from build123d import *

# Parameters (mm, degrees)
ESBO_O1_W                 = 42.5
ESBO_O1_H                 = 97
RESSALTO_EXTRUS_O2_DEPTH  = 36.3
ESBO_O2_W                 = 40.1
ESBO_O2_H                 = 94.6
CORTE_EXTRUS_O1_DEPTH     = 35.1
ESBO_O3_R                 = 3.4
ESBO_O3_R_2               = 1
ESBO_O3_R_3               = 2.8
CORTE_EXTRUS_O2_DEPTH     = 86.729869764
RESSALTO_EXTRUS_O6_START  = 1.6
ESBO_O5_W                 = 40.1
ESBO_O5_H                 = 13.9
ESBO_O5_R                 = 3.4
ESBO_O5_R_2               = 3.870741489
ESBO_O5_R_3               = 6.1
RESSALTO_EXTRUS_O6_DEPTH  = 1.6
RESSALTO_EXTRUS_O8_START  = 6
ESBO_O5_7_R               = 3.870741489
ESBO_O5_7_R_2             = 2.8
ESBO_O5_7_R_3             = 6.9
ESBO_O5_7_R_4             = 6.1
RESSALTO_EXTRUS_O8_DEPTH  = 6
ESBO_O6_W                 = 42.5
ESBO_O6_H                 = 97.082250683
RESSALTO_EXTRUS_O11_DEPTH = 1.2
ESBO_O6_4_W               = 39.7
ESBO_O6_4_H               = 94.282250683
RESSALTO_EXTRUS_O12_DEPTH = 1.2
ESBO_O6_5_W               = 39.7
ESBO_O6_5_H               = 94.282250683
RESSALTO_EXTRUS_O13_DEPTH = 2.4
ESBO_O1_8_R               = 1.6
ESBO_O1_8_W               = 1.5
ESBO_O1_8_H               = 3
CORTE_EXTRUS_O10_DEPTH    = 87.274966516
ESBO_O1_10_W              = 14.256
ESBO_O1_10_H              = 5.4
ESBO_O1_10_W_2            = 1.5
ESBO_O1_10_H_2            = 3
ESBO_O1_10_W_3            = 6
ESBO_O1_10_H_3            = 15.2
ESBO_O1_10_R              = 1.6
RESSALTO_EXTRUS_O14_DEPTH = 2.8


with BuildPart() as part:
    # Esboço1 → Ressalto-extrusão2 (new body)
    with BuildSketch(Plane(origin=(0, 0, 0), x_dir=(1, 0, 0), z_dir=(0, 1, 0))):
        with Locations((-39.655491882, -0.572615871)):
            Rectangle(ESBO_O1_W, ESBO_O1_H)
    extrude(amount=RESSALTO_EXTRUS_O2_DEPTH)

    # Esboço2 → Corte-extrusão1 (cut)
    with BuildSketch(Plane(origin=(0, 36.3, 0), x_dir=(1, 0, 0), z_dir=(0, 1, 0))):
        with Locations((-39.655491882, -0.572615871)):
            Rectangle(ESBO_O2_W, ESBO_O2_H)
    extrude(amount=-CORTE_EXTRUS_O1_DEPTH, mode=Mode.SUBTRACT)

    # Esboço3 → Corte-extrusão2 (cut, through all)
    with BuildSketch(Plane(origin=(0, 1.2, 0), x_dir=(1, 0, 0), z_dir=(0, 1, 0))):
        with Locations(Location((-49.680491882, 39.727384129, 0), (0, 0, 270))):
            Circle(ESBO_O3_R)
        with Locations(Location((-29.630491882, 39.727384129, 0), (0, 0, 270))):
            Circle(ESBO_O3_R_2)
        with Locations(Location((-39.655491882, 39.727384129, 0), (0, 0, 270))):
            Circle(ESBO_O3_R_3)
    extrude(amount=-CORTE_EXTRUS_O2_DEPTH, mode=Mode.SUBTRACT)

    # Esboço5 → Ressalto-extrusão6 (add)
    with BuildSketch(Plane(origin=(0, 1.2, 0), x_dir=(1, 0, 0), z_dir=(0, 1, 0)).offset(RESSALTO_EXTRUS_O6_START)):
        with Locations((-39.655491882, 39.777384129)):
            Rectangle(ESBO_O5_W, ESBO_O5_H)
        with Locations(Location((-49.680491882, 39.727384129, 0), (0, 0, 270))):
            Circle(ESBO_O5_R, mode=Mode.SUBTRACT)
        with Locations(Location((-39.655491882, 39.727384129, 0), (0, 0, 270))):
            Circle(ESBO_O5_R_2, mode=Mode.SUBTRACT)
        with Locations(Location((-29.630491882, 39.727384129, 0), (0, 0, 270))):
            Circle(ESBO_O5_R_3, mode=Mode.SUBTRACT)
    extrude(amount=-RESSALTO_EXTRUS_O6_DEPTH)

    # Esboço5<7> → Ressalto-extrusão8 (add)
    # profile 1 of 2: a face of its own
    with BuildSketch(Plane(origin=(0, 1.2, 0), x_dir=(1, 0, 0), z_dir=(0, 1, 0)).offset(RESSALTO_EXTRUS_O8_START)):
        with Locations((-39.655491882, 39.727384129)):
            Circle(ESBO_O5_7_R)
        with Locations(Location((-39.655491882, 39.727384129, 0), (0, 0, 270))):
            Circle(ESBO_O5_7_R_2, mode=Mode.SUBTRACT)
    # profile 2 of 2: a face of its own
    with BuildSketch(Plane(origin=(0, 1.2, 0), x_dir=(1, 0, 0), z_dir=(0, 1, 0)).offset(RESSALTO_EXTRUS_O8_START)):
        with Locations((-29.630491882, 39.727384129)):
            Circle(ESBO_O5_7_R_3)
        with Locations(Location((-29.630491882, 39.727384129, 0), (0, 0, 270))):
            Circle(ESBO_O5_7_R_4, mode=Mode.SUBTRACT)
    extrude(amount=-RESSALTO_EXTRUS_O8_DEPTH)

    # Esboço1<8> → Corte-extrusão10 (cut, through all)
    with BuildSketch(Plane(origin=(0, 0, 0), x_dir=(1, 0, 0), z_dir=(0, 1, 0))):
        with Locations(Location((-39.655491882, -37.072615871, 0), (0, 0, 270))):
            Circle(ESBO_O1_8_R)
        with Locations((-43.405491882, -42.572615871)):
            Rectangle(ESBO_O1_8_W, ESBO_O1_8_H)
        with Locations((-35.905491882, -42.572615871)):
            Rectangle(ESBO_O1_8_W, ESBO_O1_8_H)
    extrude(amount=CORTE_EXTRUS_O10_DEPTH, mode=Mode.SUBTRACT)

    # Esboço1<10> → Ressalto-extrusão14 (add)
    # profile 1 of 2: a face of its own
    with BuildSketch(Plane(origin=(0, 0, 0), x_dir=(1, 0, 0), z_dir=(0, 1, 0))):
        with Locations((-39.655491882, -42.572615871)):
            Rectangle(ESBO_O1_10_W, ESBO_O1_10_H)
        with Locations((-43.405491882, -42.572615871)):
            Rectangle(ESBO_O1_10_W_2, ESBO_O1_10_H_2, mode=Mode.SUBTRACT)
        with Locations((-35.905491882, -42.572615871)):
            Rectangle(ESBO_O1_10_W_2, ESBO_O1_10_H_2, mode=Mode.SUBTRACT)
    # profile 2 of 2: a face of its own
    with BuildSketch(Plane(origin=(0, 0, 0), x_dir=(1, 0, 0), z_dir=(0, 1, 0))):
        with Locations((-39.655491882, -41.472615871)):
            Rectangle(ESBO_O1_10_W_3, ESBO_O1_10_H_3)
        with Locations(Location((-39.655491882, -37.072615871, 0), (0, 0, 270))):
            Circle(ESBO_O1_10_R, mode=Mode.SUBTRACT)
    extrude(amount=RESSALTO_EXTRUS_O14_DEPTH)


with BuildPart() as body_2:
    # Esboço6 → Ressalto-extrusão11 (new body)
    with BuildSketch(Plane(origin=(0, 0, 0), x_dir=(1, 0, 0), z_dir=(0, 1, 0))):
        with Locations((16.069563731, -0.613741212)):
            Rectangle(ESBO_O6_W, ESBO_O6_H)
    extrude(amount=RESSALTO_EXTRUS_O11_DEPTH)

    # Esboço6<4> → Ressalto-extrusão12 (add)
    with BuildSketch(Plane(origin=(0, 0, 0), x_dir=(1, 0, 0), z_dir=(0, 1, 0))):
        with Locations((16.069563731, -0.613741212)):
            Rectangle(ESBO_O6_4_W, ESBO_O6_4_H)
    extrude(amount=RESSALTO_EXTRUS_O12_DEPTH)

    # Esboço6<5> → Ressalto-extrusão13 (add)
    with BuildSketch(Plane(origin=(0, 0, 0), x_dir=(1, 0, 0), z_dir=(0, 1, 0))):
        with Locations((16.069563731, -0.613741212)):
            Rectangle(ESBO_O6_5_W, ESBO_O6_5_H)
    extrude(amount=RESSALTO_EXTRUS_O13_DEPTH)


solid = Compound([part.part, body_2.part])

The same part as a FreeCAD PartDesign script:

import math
import FreeCAD as App
import Part
import Sketcher

V = App.Vector
Q = App.Units.Quantity

doc = App.newDocument("Part")
body = doc.addObject("PartDesign::Body", "Body")

sketch1 = body.newObject("Sketcher::SketchObject", "Sketch")
sketch1.AttachmentSupport = (doc.getObject("XZ_Plane"), [""])
sketch1.MapMode = "FlatFace"
sketch1.addGeometry([
    Part.LineSegment(V(-60.905492, -47.927384, 0), V(-60.905492, 49.072616, 0)),
    Part.LineSegment(V(-60.905492, 49.072616, 0), V(-18.405492, 49.072616, 0)),
    Part.LineSegment(V(-18.405492, 49.072616, 0), V(-18.405492, -47.927384, 0)),
    Part.LineSegment(V(-18.405492, -47.927384, 0), V(-60.905492, -47.927384, 0)),
], False)
sketch1.addConstraint([
    Sketcher.Constraint("Coincident", 0, 2, 1, 1),
    Sketcher.Constraint("Coincident", 1, 2, 2, 1),
    Sketcher.Constraint("Coincident", 2, 2, 3, 1),
    Sketcher.Constraint("Coincident", 3, 2, 0, 1),
    Sketcher.Constraint("Vertical", 0),
    Sketcher.Constraint("Horizontal", 1),
    Sketcher.Constraint("Vertical", 2),
    Sketcher.Constraint("Horizontal", 3),
    Sketcher.Constraint("DistanceY", 0, 1, 0, 2, Q("97 mm")),
    Sketcher.Constraint("DistanceX", 1, 1, 1, 2, Q("42.5 mm")),
    Sketcher.Constraint("DistanceX", 0, 2, -1, 1, Q("60.905492 mm")),
    Sketcher.Constraint("DistanceY", -1, 1, 0, 2, Q("49.072616 mm")),
])
pad1 = body.newObject("PartDesign::Pad", "Pad")
pad1.Profile = sketch1
pad1.Length = 36.3
pad1.Reversed = True

sketch2 = body.newObject("Sketcher::SketchObject", "Sketch001")
sketch2.AttachmentSupport = (doc.getObject("XZ_Plane"), [""])
sketch2.MapMode = "FlatFace"
sketch2.AttachmentOffset = App.Placement(V(0, 0, -36.3), App.Rotation())
sketch2.addGeometry([
    Part.LineSegment(V(-59.705492, -46.727384, 0), V(-59.705492, 47.872616, 0)),
    Part.LineSegment(V(-59.705492, 47.872616, 0), V(-19.605492, 47.872616, 0)),
    Part.LineSegment(V(-19.605492, 47.872616, 0), V(-19.605492, -46.727384, 0)),
    Part.LineSegment(V(-19.605492, -46.727384, 0), V(-59.705492, -46.727384, 0)),
], False)
sketch2.addConstraint([
    Sketcher.Constraint("Coincident", 0, 2, 1, 1),
    Sketcher.Constraint("Coincident", 1, 2, 2, 1),
    Sketcher.Constraint("Coincident", 2, 2, 3, 1),
    Sketcher.Constraint("Coincident", 3, 2, 0, 1),
    Sketcher.Constraint("Vertical", 0),
    Sketcher.Constraint("Horizontal", 1),
    Sketcher.Constraint("Vertical", 2),
    Sketcher.Constraint("Horizontal", 3),
    Sketcher.Constraint("DistanceX", 1, 1, 1, 2, Q("40.1 mm")),
    Sketcher.Constraint("DistanceY", 0, 1, 0, 2, Q("94.6 mm")),
    Sketcher.Constraint("DistanceX", 0, 2, -1, 1, Q("59.705492 mm")),
    Sketcher.Constraint("DistanceY", -1, 1, 0, 2, Q("47.872616 mm")),
])
pocket1 = body.newObject("PartDesign::Pocket", "Pocket")
pocket1.Profile = sketch2
pocket1.Length = 35.1
pocket1.Reversed = True

sketch3 = body.newObject("Sketcher::SketchObject", "Sketch002")
sketch3.AttachmentSupport = (doc.getObject("XZ_Plane"), [""])
sketch3.MapMode = "FlatFace"
sketch3.AttachmentOffset = App.Placement(V(0, 0, -1.2), App.Rotation())
sketch3.addGeometry([
    Part.Circle(V(-49.680492, -39.727384, 0), V(0, 0, 1), 3.4),
    Part.Circle(V(-29.630492, -39.727384, 0), V(0, 0, 1), 1),
    Part.Circle(V(-39.655492, -39.727384, 0), V(0, 0, 1), 2.8),
], False)
sketch3.addConstraint([
    Sketcher.Constraint("Horizontal", 0, 3, 1, 3),
    Sketcher.Constraint("Horizontal", 1, 3, 2, 3),
    Sketcher.Constraint("Diameter", 1, Q("2 mm")),
    Sketcher.Constraint("Diameter", 0, Q("6.8 mm")),
    Sketcher.Constraint("Diameter", 2, Q("5.6 mm")),
    Sketcher.Constraint("DistanceX", 0, 3, 1, 3, Q("20.05 mm")),
    Sketcher.Constraint("DistanceX", 0, 3, 2, 3, Q("10.025 mm")),
    Sketcher.Constraint("DistanceX", 0, 3, -1, 1, Q("49.680492 mm")),
    Sketcher.Constraint("DistanceY", 0, 3, -1, 1, Q("39.727384 mm")),
])
pocket2 = body.newObject("PartDesign::Pocket", "Pocket001")
pocket2.Profile = sketch3
pocket2.Type = "ThroughAll"
pocket2.Reversed = True

sketch4 = body.newObject("Sketcher::SketchObject", "Sketch003")
sketch4.AttachmentSupport = (doc.getObject("XZ_Plane"), [""])
sketch4.MapMode = "FlatFace"
sketch4.AttachmentOffset = App.Placement(V(0, 0, -2.8), App.Rotation())
sketch4.addGeometry([
    Part.LineSegment(V(-59.705492, -46.727384, 0), V(-59.705492, -32.827384, 0)),
    Part.LineSegment(V(-59.705492, -32.827384, 0), V(-19.605492, -32.827384, 0)),
    Part.LineSegment(V(-19.605492, -32.827384, 0), V(-19.605492, -46.727384, 0)),
    Part.LineSegment(V(-19.605492, -46.727384, 0), V(-59.705492, -46.727384, 0)),
    Part.Circle(V(-49.680492, -39.727384, 0), V(0, 0, 1), 3.4),
    Part.Circle(V(-39.655492, -39.727384, 0), V(0, 0, 1), 3.870741),
    Part.Circle(V(-29.630492, -39.727384, 0), V(0, 0, 1), 6.1),
], False)
sketch4.addConstraint([
    Sketcher.Constraint("Coincident", 0, 2, 1, 1),
    Sketcher.Constraint("Coincident", 1, 2, 2, 1),
    Sketcher.Constraint("Coincident", 2, 2, 3, 1),
    Sketcher.Constraint("Coincident", 3, 2, 0, 1),
    Sketcher.Constraint("Vertical", 0),
    Sketcher.Constraint("Horizontal", 1),
    Sketcher.Constraint("Vertical", 2),
    Sketcher.Constraint("Horizontal", 3),
    Sketcher.Constraint("Horizontal", 4, 3, 5, 3),
    Sketcher.Constraint("Horizontal", 5, 3, 6, 3),
    Sketcher.Constraint("Diameter", 4, Q("6.8 mm")),
    Sketcher.Constraint("Diameter", 6, Q("12.2 mm")),
    Sketcher.Constraint("DistanceX", 1, 1, 1, 2, Q("40.1 mm")),
    Sketcher.Constraint("DistanceY", 0, 1, 0, 2, Q("13.9 mm")),
    Sketcher.Constraint("DistanceY", 2, 2, 6, 3, Q("7 mm")),
    Sketcher.Constraint("DistanceX", 4, 3, 6, 3, Q("20.05 mm")),
    Sketcher.Constraint("DistanceX", 0, 2, 5, 3, Q("20.05 mm")),
    Sketcher.Constraint("Diameter", 5, Q("7.741483 mm")),
    Sketcher.Constraint("DistanceX", 4, 3, 5, 3, Q("10.025 mm")),
    Sketcher.Constraint("DistanceX", 4, 3, -1, 1, Q("49.680492 mm")),
    Sketcher.Constraint("DistanceY", 4, 3, -1, 1, Q("39.727384 mm")),
])
pad2 = body.newObject("PartDesign::Pad", "Pad001")
pad2.Profile = sketch4
pad2.Length = 1.6

sketch5 = body.newObject("Sketcher::SketchObject", "Sketch004")
sketch5.AttachmentSupport = (doc.getObject("XZ_Plane"), [""])
sketch5.MapMode = "FlatFace"
sketch5.AttachmentOffset = App.Placement(V(0, 0, -7.2), App.Rotation())
sketch5.addGeometry([
    Part.ArcOfCircle(Part.Circle(V(-29.630492, -39.727384, 0), V(0, 0, 1), 6.9), math.radians(-164.215122), math.radians(164.215122)),
    Part.ArcOfCircle(Part.Circle(V(-39.655492, -39.727384, 0), V(0, 0, 1), 3.870741), math.radians(29.006916), math.radians(330.993084)),
    Part.Circle(V(-29.630492, -39.727384, 0), V(0, 0, 1), 6.1),
    Part.Circle(V(-39.655492, -39.727384, 0), V(0, 0, 1), 2.8),
], False)
sketch5.addConstraint([
    Sketcher.Constraint("Coincident", 0, 1, 1, 2),
    Sketcher.Constraint("Coincident", 1, 1, 0, 2),
    Sketcher.Constraint("Coincident", 2, 3, 0, 3),
    Sketcher.Constraint("Coincident", 3, 3, 1, 3),
    Sketcher.Constraint("Horizontal", 0, 3, 1, 3),
    Sketcher.Constraint("Diameter", 2, Q("12.2 mm")),
    Sketcher.Constraint("Diameter", 3, Q("5.6 mm")),
    Sketcher.Constraint("Radius", 0, Q("6.9 mm")),
    Sketcher.Constraint("Radius", 1, Q("3.870741 mm")),
    Sketcher.Constraint("DistanceX", 1, 3, 0, 3, Q("10.025 mm")),
    Sketcher.Constraint("DistanceX", 0, 3, -1, 1, Q("29.630492 mm")),
    Sketcher.Constraint("DistanceY", 0, 3, -1, 1, Q("39.727384 mm")),
])
pad3 = body.newObject("PartDesign::Pad", "Pad002")
pad3.Profile = sketch5
pad3.Length = 6

sketch6 = body.newObject("Sketcher::SketchObject", "Sketch005")
sketch6.AttachmentSupport = (doc.getObject("XZ_Plane"), [""])
sketch6.MapMode = "FlatFace"
sketch6.addGeometry([
    Part.Circle(V(-39.655492, 37.072616, 0), V(0, 0, 1), 1.6),
    Part.LineSegment(V(-44.155492, 41.072616, 0), V(-44.155492, 44.072616, 0)),
    Part.LineSegment(V(-44.155492, 44.072616, 0), V(-42.655492, 44.072616, 0)),
    Part.LineSegment(V(-42.655492, 44.072616, 0), V(-42.655492, 41.072616, 0)),
    Part.LineSegment(V(-42.655492, 41.072616, 0), V(-44.155492, 41.072616, 0)),
    Part.LineSegment(V(-36.655492, 41.072616, 0), V(-36.655492, 44.072616, 0)),
    Part.LineSegment(V(-36.655492, 44.072616, 0), V(-35.155492, 44.072616, 0)),
    Part.LineSegment(V(-35.155492, 44.072616, 0), V(-35.155492, 41.072616, 0)),
    Part.LineSegment(V(-35.155492, 41.072616, 0), V(-36.655492, 41.072616, 0)),
], False)
sketch6.addConstraint([
    Sketcher.Constraint("Coincident", 1, 2, 2, 1),
    Sketcher.Constraint("Coincident", 2, 2, 3, 1),
    Sketcher.Constraint("Coincident", 3, 2, 4, 1),
    Sketcher.Constraint("Coincident", 4, 2, 1, 1),
    Sketcher.Constraint("Coincident", 5, 2, 6, 1),
    Sketcher.Constraint("Coincident", 6, 2, 7, 1),
    Sketcher.Constraint("Coincident", 7, 2, 8, 1),
    Sketcher.Constraint("Coincident", 8, 2, 5, 1),
    Sketcher.Constraint("Vertical", 1),
    Sketcher.Constraint("Horizontal", 2),
    Sketcher.Constraint("Vertical", 3),
    Sketcher.Constraint("Horizontal", 4),
    Sketcher.Constraint("Vertical", 5),
    Sketcher.Constraint("Horizontal", 6),
    Sketcher.Constraint("Vertical", 7),
    Sketcher.Constraint("Horizontal", 8),
    Sketcher.Constraint("Horizontal", 2, 2, 5, 2),
    Sketcher.Constraint("Horizontal", 4, 2, 7, 2),
    Sketcher.Constraint("Equal", 4, 6),
    Sketcher.Constraint("Diameter", 0, Q("3.2 mm")),
    Sketcher.Constraint("DistanceY", 1, 1, 1, 2, Q("3 mm")),
    Sketcher.Constraint("DistanceX", 2, 1, 2, 2, Q("1.5 mm")),
    Sketcher.Constraint("DistanceY", 0, 3, 1, 2, Q("7 mm")),
    Sketcher.Constraint("DistanceX", 2, 2, 0, 3, Q("3 mm")),
    Sketcher.Constraint("DistanceX", 2, 2, 5, 2, Q("6 mm")),
    Sketcher.Constraint("DistanceX", 0, 3, -1, 1, Q("39.655492 mm")),
    Sketcher.Constraint("DistanceY", -1, 1, 0, 3, Q("37.072616 mm")),
])
pocket3 = body.newObject("PartDesign::Pocket", "Pocket002")
pocket3.Profile = sketch6
pocket3.Type = "ThroughAll"

sketch7 = body.newObject("Sketcher::SketchObject", "Sketch006")
sketch7.AttachmentSupport = (doc.getObject("XZ_Plane"), [""])
sketch7.MapMode = "FlatFace"
sketch7.addGeometry([
    Part.LineSegment(V(-46.783492, 39.872616, 0), V(-46.783492, 45.272616, 0)),
    Part.LineSegment(V(-46.783492, 45.272616, 0), V(-42.655492, 45.272616, 0)),
    Part.LineSegment(V(-42.655492, 45.272616, 0), V(-42.655492, 49.072616, 0)),
    Part.LineSegment(V(-42.655492, 49.072616, 0), V(-36.655492, 49.072616, 0)),
    Part.LineSegment(V(-36.655492, 49.072616, 0), V(-36.655492, 45.272616, 0)),
    Part.LineSegment(V(-36.655492, 45.272616, 0), V(-32.527492, 45.272616, 0)),
    Part.LineSegment(V(-32.527492, 45.272616, 0), V(-32.527492, 39.872616, 0)),
    Part.LineSegment(V(-32.527492, 39.872616, 0), V(-36.655492, 39.872616, 0)),
    Part.LineSegment(V(-36.655492, 39.872616, 0), V(-36.655492, 33.872616, 0)),
    Part.LineSegment(V(-36.655492, 33.872616, 0), V(-42.655492, 33.872616, 0)),
    Part.LineSegment(V(-42.655492, 33.872616, 0), V(-42.655492, 39.872616, 0)),
    Part.LineSegment(V(-42.655492, 39.872616, 0), V(-46.783492, 39.872616, 0)),
    Part.LineSegment(V(-44.155492, 41.072616, 0), V(-42.655492, 41.072616, 0)),
    Part.LineSegment(V(-42.655492, 41.072616, 0), V(-42.655492, 44.072616, 0)),
    Part.LineSegment(V(-42.655492, 44.072616, 0), V(-44.155492, 44.072616, 0)),
    Part.LineSegment(V(-44.155492, 44.072616, 0), V(-44.155492, 41.072616, 0)),
    Part.LineSegment(V(-36.655492, 44.072616, 0), V(-36.655492, 41.072616, 0)),
    Part.LineSegment(V(-36.655492, 41.072616, 0), V(-35.155492, 41.072616, 0)),
    Part.LineSegment(V(-35.155492, 41.072616, 0), V(-35.155492, 44.072616, 0)),
    Part.LineSegment(V(-35.155492, 44.072616, 0), V(-36.655492, 44.072616, 0)),
    Part.Circle(V(-39.655492, 37.072616, 0), V(0, 0, 1), 1.6),
], False)
sketch7.addConstraint([
    Sketcher.Constraint("Coincident", 0, 2, 1, 1),
    Sketcher.Constraint("Coincident", 1, 2, 2, 1),
    Sketcher.Constraint("Coincident", 2, 2, 3, 1),
    Sketcher.Constraint("Coincident", 3, 2, 4, 1),
    Sketcher.Constraint("Coincident", 4, 2, 5, 1),
    Sketcher.Constraint("Coincident", 5, 2, 6, 1),
    Sketcher.Constraint("Coincident", 6, 2, 7, 1),
    Sketcher.Constraint("Coincident", 7, 2, 8, 1),
    Sketcher.Constraint("Coincident", 8, 2, 9, 1),
    Sketcher.Constraint("Coincident", 9, 2, 10, 1),
    Sketcher.Constraint("Coincident", 10, 2, 11, 1),
    Sketcher.Constraint("Coincident", 11, 2, 0, 1),
    Sketcher.Constraint("Coincident", 12, 2, 13, 1),
    Sketcher.Constraint("Coincident", 13, 2, 14, 1),
    Sketcher.Constraint("Coincident", 14, 2, 15, 1),
    Sketcher.Constraint("Coincident", 15, 2, 12, 1),
    Sketcher.Constraint("Coincident", 16, 2, 17, 1),
    Sketcher.Constraint("Coincident", 17, 2, 18, 1),
    Sketcher.Constraint("Coincident", 18, 2, 19, 1),
    Sketcher.Constraint("Coincident", 19, 2, 16, 1),
    Sketcher.Constraint("Vertical", 0),
    Sketcher.Constraint("Horizontal", 1),
    Sketcher.Constraint("Vertical", 2),
    Sketcher.Constraint("Horizontal", 3),
    Sketcher.Constraint("Vertical", 4),
    Sketcher.Constraint("Horizontal", 5),
    Sketcher.Constraint("Vertical", 6),
    Sketcher.Constraint("Horizontal", 7),
    Sketcher.Constraint("Vertical", 8),
    Sketcher.Constraint("Horizontal", 9),
    Sketcher.Constraint("Vertical", 10),
    Sketcher.Constraint("Horizontal", 11),
    Sketcher.Constraint("Horizontal", 12),
    Sketcher.Constraint("Vertical", 13),
    Sketcher.Constraint("Horizontal", 14),
    Sketcher.Constraint("Vertical", 15),
    Sketcher.Constraint("Vertical", 16),
    Sketcher.Constraint("Horizontal", 17),
    Sketcher.Constraint("Vertical", 18),
    Sketcher.Constraint("Horizontal", 19),
    Sketcher.Constraint("Horizontal", 1, 2, 4, 2),
    Sketcher.Constraint("Horizontal", 7, 2, 10, 2),
    Sketcher.Constraint("Horizontal", 15, 2, 16, 2),
    Sketcher.Constraint("Horizontal", 14, 2, 18, 2),
    Sketcher.Constraint("Vertical", 4, 2, 7, 2),
    Sketcher.Constraint("Vertical", 2, 2, 9, 2),
    Sketcher.Constraint("Vertical", 10, 2, 12, 2),
    Sketcher.Constraint("Vertical", 8, 2, 16, 2),
    Sketcher.Constraint("Equal", 1, 5),
    Sketcher.Constraint("Equal", 14, 17),
    Sketcher.Constraint("Equal", 9, 8),
    Sketcher.Constraint("Diameter", 20, Q("3.2 mm")),
    Sketcher.Constraint("DistanceX", 3, 1, 3, 2, Q("6 mm")),
    Sketcher.Constraint("DistanceY", 13, 1, 13, 2, Q("3 mm")),
    Sketcher.Constraint("DistanceX", 12, 1, 12, 2, Q("1.5 mm")),
    Sketcher.Constraint("DistanceY", 0, 1, 0, 2, Q("5.4 mm")),
    Sketcher.Constraint("DistanceY", 2, 1, 2, 2, Q("3.8 mm")),
    Sketcher.Constraint("DistanceX", 1, 2, 20, 3, Q("3 mm")),
    Sketcher.Constraint("DistanceY", 20, 3, 2, 2, Q("12 mm")),
    Sketcher.Constraint("DistanceY", 20, 3, 12, 2, Q("4 mm")),
    Sketcher.Constraint("DistanceX", 1, 1, 1, 2, Q("4.128 mm")),
    Sketcher.Constraint("DistanceX", 20, 3, -1, 1, Q("39.655492 mm")),
    Sketcher.Constraint("DistanceY", -1, 1, 20, 3, Q("37.072616 mm")),
])
pad4 = body.newObject("PartDesign::Pad", "Pad003")
pad4.Profile = sketch7
pad4.Length = 2.8
pad4.Reversed = True
body2 = doc.addObject("PartDesign::Body", "Body001")

sketch8 = body2.newObject("Sketcher::SketchObject", "Sketch007")
sketch8.AttachmentSupport = (doc.getObject("XZ_Plane001"), [""])
sketch8.MapMode = "FlatFace"
sketch8.addGeometry([
    Part.LineSegment(V(-5.180436, -47.927384, 0), V(-5.180436, 49.154867, 0)),
    Part.LineSegment(V(-5.180436, 49.154867, 0), V(37.319564, 49.154867, 0)),
    Part.LineSegment(V(37.319564, 49.154867, 0), V(37.319564, -47.927384, 0)),
    Part.LineSegment(V(37.319564, -47.927384, 0), V(-5.180436, -47.927384, 0)),
], False)
sketch8.addConstraint([
    Sketcher.Constraint("Coincident", 0, 2, 1, 1),
    Sketcher.Constraint("Coincident", 1, 2, 2, 1),
    Sketcher.Constraint("Coincident", 2, 2, 3, 1),
    Sketcher.Constraint("Coincident", 3, 2, 0, 1),
    Sketcher.Constraint("Vertical", 0),
    Sketcher.Constraint("Horizontal", 1),
    Sketcher.Constraint("Vertical", 2),
    Sketcher.Constraint("Horizontal", 3),
    Sketcher.Constraint("DistanceX", 1, 1, 1, 2, Q("42.5 mm")),
    Sketcher.Constraint("DistanceY", 0, 1, 0, 2, Q("97.082251 mm")),
    Sketcher.Constraint("DistanceX", 0, 2, -1, 1, Q("5.180436 mm")),
    Sketcher.Constraint("DistanceY", -1, 1, 0, 2, Q("49.154867 mm")),
])
pad5 = body2.newObject("PartDesign::Pad", "Pad004")
pad5.Profile = sketch8
pad5.Length = 1.2
pad5.Reversed = True

sketch9 = body2.newObject("Sketcher::SketchObject", "Sketch008")
sketch9.AttachmentSupport = (doc.getObject("XZ_Plane001"), [""])
sketch9.MapMode = "FlatFace"
sketch9.addGeometry([
    Part.LineSegment(V(-3.780436, -46.527384, 0), V(-3.780436, 47.754867, 0)),
    Part.LineSegment(V(-3.780436, 47.754867, 0), V(35.919564, 47.754867, 0)),
    Part.LineSegment(V(35.919564, 47.754867, 0), V(35.919564, -46.527384, 0)),
    Part.LineSegment(V(35.919564, -46.527384, 0), V(-3.780436, -46.527384, 0)),
], False)
sketch9.addConstraint([
    Sketcher.Constraint("Coincident", 0, 2, 1, 1),
    Sketcher.Constraint("Coincident", 1, 2, 2, 1),
    Sketcher.Constraint("Coincident", 2, 2, 3, 1),
    Sketcher.Constraint("Coincident", 3, 2, 0, 1),
    Sketcher.Constraint("Vertical", 0),
    Sketcher.Constraint("Horizontal", 1),
    Sketcher.Constraint("Vertical", 2),
    Sketcher.Constraint("Horizontal", 3),
    Sketcher.Constraint("DistanceX", 1, 1, 1, 2, Q("39.7 mm")),
    Sketcher.Constraint("DistanceY", 0, 1, 0, 2, Q("94.282251 mm")),
    Sketcher.Constraint("DistanceX", 0, 2, -1, 1, Q("3.780436 mm")),
    Sketcher.Constraint("DistanceY", -1, 1, 0, 2, Q("47.754867 mm")),
])
pad6 = body2.newObject("PartDesign::Pad", "Pad005")
pad6.Profile = sketch9
pad6.Length = 1.2
pad6.Reversed = True

sketch10 = body2.newObject("Sketcher::SketchObject", "Sketch009")
sketch10.AttachmentSupport = (doc.getObject("XZ_Plane001"), [""])
sketch10.MapMode = "FlatFace"
sketch10.addGeometry([
    Part.LineSegment(V(-3.780436, -46.527384, 0), V(-3.780436, 47.754867, 0)),
    Part.LineSegment(V(-3.780436, 47.754867, 0), V(35.919564, 47.754867, 0)),
    Part.LineSegment(V(35.919564, 47.754867, 0), V(35.919564, -46.527384, 0)),
    Part.LineSegment(V(35.919564, -46.527384, 0), V(-3.780436, -46.527384, 0)),
], False)
sketch10.addConstraint([
    Sketcher.Constraint("Coincident", 0, 2, 1, 1),
    Sketcher.Constraint("Coincident", 1, 2, 2, 1),
    Sketcher.Constraint("Coincident", 2, 2, 3, 1),
    Sketcher.Constraint("Coincident", 3, 2, 0, 1),
    Sketcher.Constraint("Vertical", 0),
    Sketcher.Constraint("Horizontal", 1),
    Sketcher.Constraint("Vertical", 2),
    Sketcher.Constraint("Horizontal", 3),
    Sketcher.Constraint("DistanceX", 1, 1, 1, 2, Q("39.7 mm")),
    Sketcher.Constraint("DistanceY", 0, 1, 0, 2, Q("94.282251 mm")),
    Sketcher.Constraint("DistanceX", 0, 2, -1, 1, Q("3.780436 mm")),
    Sketcher.Constraint("DistanceY", -1, 1, 0, 2, Q("47.754867 mm")),
])
pad7 = body2.newObject("PartDesign::Pad", "Pad006")
pad7.Profile = sketch10
pad7.Length = 2.4
pad7.Reversed = True

doc.recompute()
